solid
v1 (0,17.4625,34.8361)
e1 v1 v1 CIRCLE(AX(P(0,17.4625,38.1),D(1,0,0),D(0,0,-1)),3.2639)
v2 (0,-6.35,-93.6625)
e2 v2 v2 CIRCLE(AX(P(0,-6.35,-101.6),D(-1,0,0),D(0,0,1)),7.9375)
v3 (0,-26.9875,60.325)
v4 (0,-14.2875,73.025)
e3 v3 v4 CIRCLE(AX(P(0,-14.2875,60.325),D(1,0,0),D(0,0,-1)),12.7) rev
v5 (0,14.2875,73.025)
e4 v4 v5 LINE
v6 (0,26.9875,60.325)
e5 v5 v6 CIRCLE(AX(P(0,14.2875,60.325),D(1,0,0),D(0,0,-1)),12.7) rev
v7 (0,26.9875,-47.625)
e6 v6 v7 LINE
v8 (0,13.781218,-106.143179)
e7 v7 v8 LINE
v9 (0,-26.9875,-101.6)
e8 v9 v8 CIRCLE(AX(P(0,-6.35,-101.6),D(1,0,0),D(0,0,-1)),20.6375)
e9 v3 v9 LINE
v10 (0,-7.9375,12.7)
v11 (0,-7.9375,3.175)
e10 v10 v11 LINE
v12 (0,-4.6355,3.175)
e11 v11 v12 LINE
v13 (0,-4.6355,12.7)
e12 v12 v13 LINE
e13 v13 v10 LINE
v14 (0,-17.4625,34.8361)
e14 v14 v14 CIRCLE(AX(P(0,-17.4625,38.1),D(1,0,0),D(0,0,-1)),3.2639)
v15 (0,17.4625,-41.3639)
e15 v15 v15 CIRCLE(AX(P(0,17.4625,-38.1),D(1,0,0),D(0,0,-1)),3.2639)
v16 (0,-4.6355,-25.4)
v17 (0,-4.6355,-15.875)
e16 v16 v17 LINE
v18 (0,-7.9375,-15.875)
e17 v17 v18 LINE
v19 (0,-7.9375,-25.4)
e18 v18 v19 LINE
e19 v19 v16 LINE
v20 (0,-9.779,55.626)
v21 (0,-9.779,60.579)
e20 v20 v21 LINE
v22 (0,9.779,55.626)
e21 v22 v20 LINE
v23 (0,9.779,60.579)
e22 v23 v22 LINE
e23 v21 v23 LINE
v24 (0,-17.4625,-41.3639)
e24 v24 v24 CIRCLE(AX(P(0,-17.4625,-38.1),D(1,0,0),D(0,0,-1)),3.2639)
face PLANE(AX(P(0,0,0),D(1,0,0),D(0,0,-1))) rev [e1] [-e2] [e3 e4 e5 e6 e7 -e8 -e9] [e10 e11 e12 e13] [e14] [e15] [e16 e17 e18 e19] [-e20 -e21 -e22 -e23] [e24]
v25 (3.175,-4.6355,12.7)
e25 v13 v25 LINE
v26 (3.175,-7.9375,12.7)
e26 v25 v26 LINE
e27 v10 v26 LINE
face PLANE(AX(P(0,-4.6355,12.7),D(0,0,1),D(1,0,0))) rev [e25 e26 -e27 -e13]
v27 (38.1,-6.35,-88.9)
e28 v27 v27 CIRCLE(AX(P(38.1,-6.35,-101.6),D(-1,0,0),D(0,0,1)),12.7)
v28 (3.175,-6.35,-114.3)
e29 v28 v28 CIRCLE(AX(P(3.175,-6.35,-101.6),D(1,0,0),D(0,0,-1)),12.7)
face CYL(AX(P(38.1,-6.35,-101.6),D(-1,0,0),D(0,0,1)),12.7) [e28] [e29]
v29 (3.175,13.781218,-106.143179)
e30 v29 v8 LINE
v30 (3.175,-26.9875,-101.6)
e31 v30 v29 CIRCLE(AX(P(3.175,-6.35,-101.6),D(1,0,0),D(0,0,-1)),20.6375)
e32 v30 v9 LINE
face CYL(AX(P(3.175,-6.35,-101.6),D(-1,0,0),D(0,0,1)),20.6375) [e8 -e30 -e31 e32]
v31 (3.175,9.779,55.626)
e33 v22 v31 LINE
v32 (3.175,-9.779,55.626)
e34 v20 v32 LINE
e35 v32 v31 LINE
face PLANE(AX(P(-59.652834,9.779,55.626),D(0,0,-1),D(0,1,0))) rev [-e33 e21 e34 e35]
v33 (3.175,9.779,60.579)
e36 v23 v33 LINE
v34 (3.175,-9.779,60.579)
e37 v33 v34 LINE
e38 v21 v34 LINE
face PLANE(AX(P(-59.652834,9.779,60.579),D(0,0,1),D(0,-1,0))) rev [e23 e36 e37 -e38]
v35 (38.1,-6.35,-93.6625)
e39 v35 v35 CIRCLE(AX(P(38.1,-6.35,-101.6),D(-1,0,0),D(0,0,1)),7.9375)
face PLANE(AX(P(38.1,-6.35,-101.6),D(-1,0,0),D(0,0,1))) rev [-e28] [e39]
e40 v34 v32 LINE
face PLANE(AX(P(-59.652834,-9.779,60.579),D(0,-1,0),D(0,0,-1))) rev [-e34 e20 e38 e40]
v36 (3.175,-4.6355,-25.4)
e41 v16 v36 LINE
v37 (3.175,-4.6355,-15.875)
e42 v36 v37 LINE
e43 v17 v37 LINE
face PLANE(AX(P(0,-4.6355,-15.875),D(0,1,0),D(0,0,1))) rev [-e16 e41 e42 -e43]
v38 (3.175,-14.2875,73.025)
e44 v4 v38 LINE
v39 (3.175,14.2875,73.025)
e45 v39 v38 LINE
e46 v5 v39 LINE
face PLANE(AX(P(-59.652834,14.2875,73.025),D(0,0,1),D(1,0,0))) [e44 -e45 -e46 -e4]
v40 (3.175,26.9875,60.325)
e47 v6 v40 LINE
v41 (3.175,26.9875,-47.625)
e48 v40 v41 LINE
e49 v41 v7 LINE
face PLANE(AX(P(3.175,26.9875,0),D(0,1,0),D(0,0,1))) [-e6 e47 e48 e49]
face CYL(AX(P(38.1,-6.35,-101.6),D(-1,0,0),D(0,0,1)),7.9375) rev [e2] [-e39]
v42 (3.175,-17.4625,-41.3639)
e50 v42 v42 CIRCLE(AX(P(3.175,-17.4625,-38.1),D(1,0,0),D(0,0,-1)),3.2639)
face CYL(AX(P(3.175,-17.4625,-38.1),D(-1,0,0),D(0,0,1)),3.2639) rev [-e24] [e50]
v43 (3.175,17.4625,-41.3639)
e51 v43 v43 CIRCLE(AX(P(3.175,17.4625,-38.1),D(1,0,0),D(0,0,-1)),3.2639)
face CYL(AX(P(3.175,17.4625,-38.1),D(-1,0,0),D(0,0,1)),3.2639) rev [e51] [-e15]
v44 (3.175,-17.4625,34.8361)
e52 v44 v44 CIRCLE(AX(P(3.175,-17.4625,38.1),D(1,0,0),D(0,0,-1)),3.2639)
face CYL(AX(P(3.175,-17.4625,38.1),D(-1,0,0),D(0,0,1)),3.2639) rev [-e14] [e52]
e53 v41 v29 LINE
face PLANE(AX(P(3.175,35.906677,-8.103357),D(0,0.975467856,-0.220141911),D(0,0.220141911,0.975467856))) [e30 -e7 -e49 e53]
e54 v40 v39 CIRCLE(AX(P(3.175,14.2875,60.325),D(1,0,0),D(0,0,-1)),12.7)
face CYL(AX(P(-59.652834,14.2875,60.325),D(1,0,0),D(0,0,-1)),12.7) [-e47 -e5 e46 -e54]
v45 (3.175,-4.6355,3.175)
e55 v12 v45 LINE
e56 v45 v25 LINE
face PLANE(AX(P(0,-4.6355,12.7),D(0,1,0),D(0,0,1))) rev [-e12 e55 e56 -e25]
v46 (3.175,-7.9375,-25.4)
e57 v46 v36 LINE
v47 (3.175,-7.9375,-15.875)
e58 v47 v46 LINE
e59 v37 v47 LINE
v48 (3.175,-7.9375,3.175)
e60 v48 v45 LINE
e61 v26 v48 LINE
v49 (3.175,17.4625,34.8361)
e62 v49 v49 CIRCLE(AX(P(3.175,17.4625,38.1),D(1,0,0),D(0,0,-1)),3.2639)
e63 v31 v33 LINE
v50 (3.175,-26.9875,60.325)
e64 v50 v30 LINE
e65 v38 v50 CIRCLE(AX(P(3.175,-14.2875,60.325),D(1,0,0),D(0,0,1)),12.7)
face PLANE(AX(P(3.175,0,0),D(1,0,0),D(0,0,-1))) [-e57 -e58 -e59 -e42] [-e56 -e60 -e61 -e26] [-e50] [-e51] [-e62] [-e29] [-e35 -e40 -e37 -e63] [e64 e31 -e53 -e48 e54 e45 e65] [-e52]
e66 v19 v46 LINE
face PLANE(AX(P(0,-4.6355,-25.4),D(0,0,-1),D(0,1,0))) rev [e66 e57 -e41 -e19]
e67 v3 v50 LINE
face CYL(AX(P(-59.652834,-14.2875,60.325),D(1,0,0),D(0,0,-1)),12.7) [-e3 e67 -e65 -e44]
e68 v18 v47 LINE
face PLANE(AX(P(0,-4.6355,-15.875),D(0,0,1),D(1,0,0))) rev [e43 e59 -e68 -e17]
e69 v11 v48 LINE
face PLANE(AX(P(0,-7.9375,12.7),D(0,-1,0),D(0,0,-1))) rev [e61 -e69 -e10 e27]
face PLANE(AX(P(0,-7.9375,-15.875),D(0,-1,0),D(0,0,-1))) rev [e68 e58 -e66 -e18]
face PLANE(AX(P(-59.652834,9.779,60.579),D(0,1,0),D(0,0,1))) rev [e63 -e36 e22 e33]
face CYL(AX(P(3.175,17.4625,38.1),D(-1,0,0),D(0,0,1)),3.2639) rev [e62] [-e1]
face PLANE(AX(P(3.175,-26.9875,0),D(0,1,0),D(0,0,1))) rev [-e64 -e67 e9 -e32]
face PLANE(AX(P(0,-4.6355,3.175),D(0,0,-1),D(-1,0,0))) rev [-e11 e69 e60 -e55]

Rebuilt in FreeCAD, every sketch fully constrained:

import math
import FreeCAD as App
import Part
import Sketcher
from FreeCAD import Vector
Q = App.Units.Quantity


def add_polygon(sketch, points):
    """Adds a closed chain of lines whose ends are joined by coincident constraints."""
    first, n = sketch.GeometryCount, len(points)
    for a, b in zip(points, points[1:] + points[:1]):
        sketch.addGeometry(Part.LineSegment(App.Vector(*a, 0), App.Vector(*b, 0)), False)
    for i in range(n):
        sketch.addConstraint(Sketcher.Constraint("Coincident", first + i, 2, first + (i + 1) % n, 1))

doc = App.newDocument("Part")
body = doc.addObject("PartDesign::Body", "Body")

# Sketch on YZ plane
sketch1 = doc.addObject("Sketcher::SketchObject", "Sketch")
body.addObject(sketch1)
sketch1.AttachmentSupport = (doc.YZ_Plane, [""])
sketch1.MapMode = "FlatFace"
sketch1.addGeometry([
    Part.LineSegment(Vector(13.8, -106.1, 0), Vector(27, -47.6, 0)),  # 0
    Part.LineSegment(Vector(27, -47.6, 0), Vector(27, 47.6, 0)),  # 1
    Part.LineSegment(Vector(27, 47.6, 0), Vector(-27, 47.6, 0)),  # 2
    Part.LineSegment(Vector(-27, 47.6, 0), Vector(-27, -101.6, 0)),  # 3
    Part.ArcOfCircle(Part.Circle(Vector(-6.3, -101.6, 0), Vector(0, 0, 1), 20.6), math.radians(180), math.radians(347)),  # 4
    Part.Circle(Vector(-17.5, 38.1, 0), Vector(0, 0, 1), 3.3),  # 5
    Part.Circle(Vector(-17.5, -38.1, 0), Vector(0, 0, 1), 3.3),  # 6
    Part.Circle(Vector(-6.3, -101.6, 0), Vector(0, 0, 1), 12.7),  # 7
    Part.Circle(Vector(17.5, 38.1, 0), Vector(0, 0, 1), 3.3),  # 8
    Part.Circle(Vector(17.5, -38.1, 0), Vector(0, 0, 1), 3.3),  # 9
], False)
sketch1.addConstraint([
    Sketcher.Constraint("Coincident", 0, 2, 1, 1),
    Sketcher.Constraint("Coincident", 1, 2, 2, 1),
    Sketcher.Constraint("Coincident", 2, 2, 3, 1),
    Sketcher.Constraint("Tangent", 3, 2, 4, 1),
    Sketcher.Constraint("Tangent", 4, 2, 0, 1),
    Sketcher.Constraint("Vertical", 1),
    Sketcher.Constraint("Horizontal", 2),
    Sketcher.Constraint("Vertical", 3),
    Sketcher.Constraint("Coincident", 7, 3, 4, 3),
    Sketcher.Constraint("Equal", 5, 6),
    Sketcher.Constraint("Equal", 6, 8),
    Sketcher.Constraint("Equal", 8, 9),
    Sketcher.Constraint("Symmetric", 6, 3, 8, 3, -1, 1),
    Sketcher.Constraint("Symmetric", 5, 3, 9, 3, -1, 1),
    Sketcher.Constraint("Symmetric", 0, 2, 2, 2, -1, 1),
    Sketcher.Constraint("Symmetric", 5, 3, 8, 3, -2),
    Sketcher.Constraint("Diameter", 7, Q("1 in")),
    Sketcher.Constraint("Diameter", 5, Q("0.257 in")),
    Sketcher.Constraint("DistanceY", 4, 3, -1, 1, Q("4 in")),
    Sketcher.Constraint("Radius", 4, Q("0.8125 in")),
    Sketcher.Constraint("DistanceY", 6, 3, 5, 3, Q("3 in")),
    Sketcher.Constraint("DistanceY", 1, 1, 1, 2, Q("3.75 in")),
    Sketcher.Constraint("DistanceX", 2, 2, 2, 1, Q("2.125 in")),
    Sketcher.Constraint("DistanceX", 6, 3, 0, 2, Q("1.75 in")),
])
pad1 = doc.addObject("PartDesign::Pad", "Pad")
body.addObject(pad1)
pad1.Profile = sketch1
pad1.Length = Q("0.125 in")

# Sketch on YZ plane
sketch2 = doc.addObject("Sketcher::SketchObject", "Sketch001")
body.addObject(sketch2)
sketch2.AttachmentSupport = (doc.YZ_Plane, [""])
sketch2.MapMode = "FlatFace"
sketch2.addGeometry([
    Part.Circle(Vector(-6, -102, 0), Vector(0, 0, 1), 13),
    Part.Circle(Vector(-6, -102, 0), Vector(0, 0, 1), 8),
], False)
sketch2.addConstraint([
    Sketcher.Constraint("Coincident", 1, 3, 0, 3),
    Sketcher.Constraint("Diameter", 0, Q("1 in")),
    Sketcher.Constraint("Diameter", 1, Q("0.625 in")),
    Sketcher.Constraint("DistanceY", 0, 3, -1, 1, Q("4 in")),
    Sketcher.Constraint("DistanceX", 0, 3, -1, 1, Q("0.25 in")),
])
pad2 = doc.addObject("PartDesign::Pad", "Pad001")
body.addObject(pad2)
pad2.Profile = sketch2
pad2.Length = Q("1.5 in")

# Sketch on YZ plane
sketch3 = doc.addObject("Sketcher::SketchObject", "Sketch002")
body.addObject(sketch3)
sketch3.AttachmentSupport = (doc.YZ_Plane, [""])
sketch3.MapMode = "FlatFace"
sketch3.AttachmentOffset = App.Placement(Vector(0, 0, 0.125 * 25.4), App.Rotation())
sketch3.addGeometry(Part.LineSegment(Vector(27, 47.6, 0), Vector(27, 60.3, 0)), False)  # 0
sketch3.addGeometry(Part.ArcOfCircle(Part.Circle(Vector(14.3, 60.3, 0), Vector(0, 0, 1), 12.7), math.radians(0), math.radians(90)), False)  # 1
sketch3.addGeometry(Part.LineSegment(Vector(14.3, 73, 0), Vector(-14.3, 73, 0)), False)  # 2
sketch3.addGeometry(Part.ArcOfCircle(Part.Circle(Vector(-14.3, 60.3, 0), Vector(0, 0, 1), 12.7), math.radians(90), math.radians(180)), False)  # 3
sketch3.addGeometry(Part.LineSegment(Vector(-27, 60.3, 0), Vector(-27, 47.6, 0)), False)  # 4
sketch3.addGeometry(Part.LineSegment(Vector(-27, 47.6, 0), Vector(27, 47.6, 0)), False)  # 5
add_polygon(sketch3, [(-9.8, 55.6), (-9.8, 60.6), (9.8, 60.6), (9.8, 55.6)])  # lines 6-9
sketch3.addConstraint([
    Sketcher.Constraint("Tangent", 0, 2, 1, 1),
    Sketcher.Constraint("Tangent", 1, 2, 2, 1),
    Sketcher.Constraint("Tangent", 2, 2, 3, 1),
    Sketcher.Constraint("Tangent", 3, 2, 4, 1),
    Sketcher.Constraint("Coincident", 4, 2, 5, 1),
    Sketcher.Constraint("Coincident", 5, 2, 0, 1),
    Sketcher.Constraint("Vertical", 0),
    Sketcher.Constraint("Horizontal", 2),
    Sketcher.Constraint("Vertical", 4),
    Sketcher.Constraint("Horizontal", 5),
    Sketcher.Constraint("Vertical", 6),
    Sketcher.Constraint("Horizontal", 7),
    Sketcher.Constraint("Vertical", 8),
    Sketcher.Constraint("Horizontal", 9),
    Sketcher.Constraint("Equal", 1, 3),
    Sketcher.Constraint("Radius", 1, Q("0.5 in")),
    Sketcher.Constraint("DistanceY", 0, 1, 0, 2, Q("0.5 in")),
    Sketcher.Constraint("DistanceX", 7, 1, 7, 2, Q("0.77 in")),
    Sketcher.Constraint("DistanceX", 2, 2, 2, 1, Q("1.125 in")),
    Sketcher.Constraint("DistanceY", 6, 1, 6, 2, Q("0.195 in")),
    Sketcher.Constraint("DistanceY", -1, 1, 8, 2, Q("2.19 in")),
    Sketcher.Constraint("DistanceY", 3, 3, 6, 2, Q("0.01 in")),
    Sketcher.Constraint("DistanceX", -1, 1, 1, 3, Q("0.5625 in")),
    Sketcher.Constraint("DistanceX", 6, 2, -1, 1, Q("0.385 in")),
])
pad3 = doc.addObject("PartDesign::Pad", "Pad002")
body.addObject(pad3)
pad3.Profile = sketch3
pad3.Length = Q("0.125 in")
pad3.Reversed = True

# Sketch on YZ plane
sketch4 = doc.addObject("Sketcher::SketchObject", "Sketch003")
body.addObject(sketch4)
sketch4.AttachmentSupport = (doc.YZ_Plane, [""])
sketch4.MapMode = "FlatFace"
sketch4.AttachmentOffset = App.Placement(Vector(0, 0, 0.125 * 25.4), App.Rotation())
add_polygon(sketch4, [(-4.6, -15.9), (-7.9, -15.9), (-7.9, -25.4), (-4.6, -25.4)])  # lines 0-3
add_polygon(sketch4, [(-4.6, 12.7), (-7.9, 12.7), (-7.9, 3.2), (-4.6, 3.2)])  # lines 4-7
sketch4.addConstraint([
    Sketcher.Constraint("Horizontal", 0),
    Sketcher.Constraint("Vertical", 1),
    Sketcher.Constraint("Horizontal", 2),
    Sketcher.Constraint("Vertical", 3),
    Sketcher.Constraint("Horizontal", 4),
    Sketcher.Constraint("Vertical", 5),
    Sketcher.Constraint("Horizontal", 6),
    Sketcher.Constraint("Vertical", 7),
    Sketcher.Constraint("Vertical", 1, 2, 4, 2),
    Sketcher.Constraint("Vertical", 3, 2, 6, 2),
    Sketcher.Constraint("Equal", 3, 5),
    Sketcher.Constraint("DistanceY", 1, 2, -1, 1, Q("1 in")),
    Sketcher.Constraint("DistanceX", 0, 2, 0, 1, Q("0.13 in")),
    Sketcher.Constraint("DistanceY", -1, 1, 4, 2, Q("0.5 in")),
    Sketcher.Constraint("DistanceY", 1, 2, 1, 1, Q("0.375 in")),
    Sketcher.Constraint("DistanceX", 0, 2, -1, 1, Q("0.3125 in")),
])
pocket1 = doc.addObject("PartDesign::Pocket", "Pocket")
body.addObject(pocket1)
pocket1.Profile = sketch4
pocket1.Type = "ThroughAll"

doc.recompute()
